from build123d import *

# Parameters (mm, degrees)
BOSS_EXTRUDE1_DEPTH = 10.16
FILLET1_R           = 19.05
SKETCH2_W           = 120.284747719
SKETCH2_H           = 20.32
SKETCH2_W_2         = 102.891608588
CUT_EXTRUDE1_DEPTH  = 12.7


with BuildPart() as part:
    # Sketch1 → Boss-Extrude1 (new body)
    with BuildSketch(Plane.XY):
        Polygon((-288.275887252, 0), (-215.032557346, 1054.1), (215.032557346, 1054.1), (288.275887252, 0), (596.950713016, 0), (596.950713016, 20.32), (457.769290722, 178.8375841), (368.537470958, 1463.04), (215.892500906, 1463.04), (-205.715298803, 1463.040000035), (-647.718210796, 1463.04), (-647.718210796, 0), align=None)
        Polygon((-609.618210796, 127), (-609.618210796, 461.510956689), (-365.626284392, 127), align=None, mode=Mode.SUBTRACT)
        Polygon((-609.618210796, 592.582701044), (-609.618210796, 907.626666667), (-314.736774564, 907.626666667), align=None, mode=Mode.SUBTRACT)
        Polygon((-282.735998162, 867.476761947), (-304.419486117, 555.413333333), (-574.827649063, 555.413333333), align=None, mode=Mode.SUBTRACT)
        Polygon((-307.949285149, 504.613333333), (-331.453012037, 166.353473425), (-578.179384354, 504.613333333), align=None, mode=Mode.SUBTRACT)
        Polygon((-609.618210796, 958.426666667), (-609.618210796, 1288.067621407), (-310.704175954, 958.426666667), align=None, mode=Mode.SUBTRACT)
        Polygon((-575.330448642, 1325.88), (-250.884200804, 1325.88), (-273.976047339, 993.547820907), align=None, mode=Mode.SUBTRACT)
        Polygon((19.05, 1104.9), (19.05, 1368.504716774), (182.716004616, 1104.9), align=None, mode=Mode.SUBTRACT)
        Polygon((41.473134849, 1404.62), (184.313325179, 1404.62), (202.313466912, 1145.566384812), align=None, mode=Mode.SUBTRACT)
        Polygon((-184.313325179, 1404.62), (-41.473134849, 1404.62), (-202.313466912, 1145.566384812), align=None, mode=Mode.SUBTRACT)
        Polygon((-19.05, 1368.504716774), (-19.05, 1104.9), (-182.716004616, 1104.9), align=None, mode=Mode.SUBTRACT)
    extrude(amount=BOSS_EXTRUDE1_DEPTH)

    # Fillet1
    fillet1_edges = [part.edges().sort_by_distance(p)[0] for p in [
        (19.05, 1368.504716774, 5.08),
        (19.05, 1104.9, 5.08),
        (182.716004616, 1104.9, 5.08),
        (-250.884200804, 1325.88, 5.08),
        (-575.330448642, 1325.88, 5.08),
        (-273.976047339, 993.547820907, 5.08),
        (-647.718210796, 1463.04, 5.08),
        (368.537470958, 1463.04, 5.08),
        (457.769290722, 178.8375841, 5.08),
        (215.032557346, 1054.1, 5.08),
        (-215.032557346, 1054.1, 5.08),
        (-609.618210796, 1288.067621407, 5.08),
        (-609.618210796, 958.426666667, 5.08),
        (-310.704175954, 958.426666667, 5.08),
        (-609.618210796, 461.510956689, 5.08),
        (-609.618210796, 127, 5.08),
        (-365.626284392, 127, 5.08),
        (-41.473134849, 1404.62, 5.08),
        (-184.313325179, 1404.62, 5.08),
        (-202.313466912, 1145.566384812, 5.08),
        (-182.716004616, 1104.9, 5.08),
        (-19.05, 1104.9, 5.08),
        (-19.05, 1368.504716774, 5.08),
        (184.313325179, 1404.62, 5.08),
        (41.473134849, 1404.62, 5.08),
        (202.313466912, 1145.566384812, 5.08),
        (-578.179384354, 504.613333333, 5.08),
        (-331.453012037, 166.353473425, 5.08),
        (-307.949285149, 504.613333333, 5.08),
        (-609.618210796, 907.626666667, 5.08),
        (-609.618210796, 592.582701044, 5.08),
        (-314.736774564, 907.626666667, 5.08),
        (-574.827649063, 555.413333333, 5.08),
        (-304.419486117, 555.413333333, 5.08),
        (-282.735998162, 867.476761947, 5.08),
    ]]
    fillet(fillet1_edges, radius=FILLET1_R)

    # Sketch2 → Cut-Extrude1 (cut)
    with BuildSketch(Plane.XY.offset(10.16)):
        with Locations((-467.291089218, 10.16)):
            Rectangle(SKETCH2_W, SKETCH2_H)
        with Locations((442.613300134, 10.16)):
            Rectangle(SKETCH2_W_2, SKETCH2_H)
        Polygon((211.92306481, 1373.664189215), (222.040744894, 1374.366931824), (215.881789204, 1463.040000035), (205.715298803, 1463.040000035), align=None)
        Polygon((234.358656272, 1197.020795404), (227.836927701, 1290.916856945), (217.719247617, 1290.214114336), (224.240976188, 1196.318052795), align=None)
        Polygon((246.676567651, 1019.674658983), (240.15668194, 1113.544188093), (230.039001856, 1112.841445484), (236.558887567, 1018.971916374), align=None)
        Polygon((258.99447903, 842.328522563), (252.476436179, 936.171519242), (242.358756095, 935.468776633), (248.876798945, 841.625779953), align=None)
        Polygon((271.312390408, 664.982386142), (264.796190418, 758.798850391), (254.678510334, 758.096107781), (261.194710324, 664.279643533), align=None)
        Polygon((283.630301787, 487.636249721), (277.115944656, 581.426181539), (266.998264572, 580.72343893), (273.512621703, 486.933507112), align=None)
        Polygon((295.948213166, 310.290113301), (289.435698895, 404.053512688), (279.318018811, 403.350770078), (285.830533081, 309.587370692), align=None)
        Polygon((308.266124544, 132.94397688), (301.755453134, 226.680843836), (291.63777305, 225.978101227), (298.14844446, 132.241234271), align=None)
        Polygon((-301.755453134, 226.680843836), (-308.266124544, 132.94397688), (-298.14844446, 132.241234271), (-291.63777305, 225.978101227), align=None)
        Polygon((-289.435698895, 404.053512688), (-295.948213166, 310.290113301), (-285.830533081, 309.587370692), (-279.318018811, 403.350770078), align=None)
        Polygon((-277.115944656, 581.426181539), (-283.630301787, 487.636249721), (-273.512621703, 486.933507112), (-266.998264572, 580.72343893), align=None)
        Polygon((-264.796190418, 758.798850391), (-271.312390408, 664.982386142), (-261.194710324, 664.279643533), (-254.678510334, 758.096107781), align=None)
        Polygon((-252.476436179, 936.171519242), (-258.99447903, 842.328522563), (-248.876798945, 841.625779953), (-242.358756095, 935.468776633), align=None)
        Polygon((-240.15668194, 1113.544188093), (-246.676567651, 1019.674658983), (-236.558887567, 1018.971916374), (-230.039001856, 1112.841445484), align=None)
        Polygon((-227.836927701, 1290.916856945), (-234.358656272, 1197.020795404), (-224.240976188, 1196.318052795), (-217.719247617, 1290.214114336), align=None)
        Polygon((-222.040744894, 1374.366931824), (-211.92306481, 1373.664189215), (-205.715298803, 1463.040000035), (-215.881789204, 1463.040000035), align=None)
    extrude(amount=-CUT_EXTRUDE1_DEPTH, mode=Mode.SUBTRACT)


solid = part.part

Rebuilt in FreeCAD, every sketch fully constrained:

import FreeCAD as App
import Part
import Sketcher
from FreeCAD import Vector
Q = App.Units.Quantity


def edges_at(feature, points):
    """Names of the edges that pass closest to the given points."""
    edges = feature.Shape.Edges
    near = lambda p: min(range(len(edges)), key=lambda i: edges[i].distToShape(Part.Vertex(*p))[0])
    return sorted({f"Edge{near(p) + 1}" for p in points})


def add_polygon(sketch, points):
    """Adds a closed chain of lines whose ends are joined by coincident constraints."""
    first, n = sketch.GeometryCount, len(points)
    for a, b in zip(points, points[1:] + points[:1]):
        sketch.addGeometry(Part.LineSegment(App.Vector(*a, 0), App.Vector(*b, 0)), False)
    for i in range(n):
        sketch.addConstraint(Sketcher.Constraint("Coincident", first + i, 2, first + (i + 1) % n, 1))

doc = App.newDocument("Part")
body = doc.addObject("PartDesign::Body", "Body")

sketch1 = body.newObject("Sketcher::SketchObject", "Sketch")
sketch1.AttachmentSupport = (doc.getObject("XY_Plane"), [""])
sketch1.MapMode = "FlatFace"
add_polygon(sketch1, [(-288, 0), (-215, 1054), (215, 1054), (288, 0), (597, 0), (597, 20), (458, 179), (369, 1463), (216, 1463), (-206, 1463), (-648, 1463), (-648, 0)])
add_polygon(sketch1, [(-366, 127), (-610, 127), (-610, 462)])
add_polygon(sketch1, [(-578, 505), (-308, 505), (-331, 166)])
add_polygon(sketch1, [(-315, 908), (-610, 593), (-610, 908)])
add_polygon(sketch1, [(-575, 555), (-283, 867), (-304, 555)])
add_polygon(sketch1, [(-311, 958), (-610, 958), (-610, 1288)])
add_polygon(sketch1, [(-274, 994), (-575, 1326), (-251, 1326)])
add_polygon(sketch1, [(-183, 1105), (-19, 1369), (-19, 1105)])
add_polygon(sketch1, [(-202, 1146), (-184, 1405), (-41, 1405)])
add_polygon(sketch1, [(183, 1105), (19, 1105), (19, 1369)])
add_polygon(sketch1, [(202, 1146), (41, 1405), (184, 1405)])
sketch1.addConstraint([
    Sketcher.Constraint("Horizontal", 1),
    Sketcher.Constraint("Horizontal", 3),
    Sketcher.Constraint("Vertical", 4),
    Sketcher.Constraint("Horizontal", 7),
    Sketcher.Constraint("Horizontal", 8),
    Sketcher.Constraint("Horizontal", 9),
    Sketcher.Constraint("Vertical", 10),
    Sketcher.Constraint("Horizontal", 11),
    Sketcher.Constraint("Horizontal", 12),
    Sketcher.Constraint("Vertical", 13),
    Sketcher.Constraint("Horizontal", 15),
    Sketcher.Constraint("Vertical", 19),
    Sketcher.Constraint("Horizontal", 20),
    Sketcher.Constraint("Horizontal", 23),
    Sketcher.Constraint("Horizontal", 24),
    Sketcher.Constraint("Vertical", 25),
    Sketcher.Constraint("Horizontal", 28),
    Sketcher.Constraint("Vertical", 31),
    Sketcher.Constraint("Horizontal", 32),
    Sketcher.Constraint("Horizontal", 34),
    Sketcher.Constraint("Horizontal", 36),
    Sketcher.Constraint("Vertical", 37),
    Sketcher.Constraint("Horizontal", 40),
    Sketcher.Constraint("Symmetric", 2, 2, 11, 2, -1, 1),
    Sketcher.Constraint("Symmetric", 31, 2, 36, 2, -2),
    Sketcher.Constraint("Symmetric", 34, 2, 39, 2, -2),
    Sketcher.Constraint("Symmetric", 35, 2, 41, 2, -2),
    Sketcher.Constraint("PointOnObject", 2, 2, -1),
    Sketcher.Constraint("Parallel", 2, 6),
    Sketcher.Constraint("Parallel", 0, 16),
    Sketcher.Constraint("Parallel", 14, 17),
    Sketcher.Constraint("Parallel", 18, 21),
    Sketcher.Constraint("Parallel", 16, 22),
    Sketcher.Constraint("Parallel", 26, 27),
    Sketcher.Constraint("Parallel", 22, 29),
    Sketcher.Constraint("Parallel", 29, 33),
    Sketcher.Constraint("Parallel", 30, 35),
    Sketcher.Constraint("Parallel", 38, 39),
    Sketcher.Constraint("Parallel", 6, 41),
    Sketcher.Constraint("Horizontal", 30, 2, 37, 2),
    Sketcher.Constraint("Vertical", 13, 2, 18, 2),
    Sketcher.Constraint("Vertical", 19, 2, 24, 2),
    Sketcher.Constraint("Equal", 34, 40),
    Sketcher.Constraint("DistanceY", 4, 1, 4, 2, Q("0.8 in")),
    Sketcher.Constraint("DistanceY", 10, 2, 10, 1, Q("57.6 in")),
    Sketcher.Constraint("DistanceY", -1, 1, 12, 2, Q("5 in")),
    Sketcher.Constraint("DistanceY", 15, 2, 22, 2, Q("2 in")),
    Sketcher.Constraint("DistanceY", 19, 2, 24, 2, Q("2 in")),
    Sketcher.Constraint("DistanceY", 0, 2, 31, 2, Q("2 in")),
    Sketcher.Constraint("DistanceY", -1, 1, 0, 2, Q("41.5 in")),
    Sketcher.Constraint("DistanceY", -1, 1, 27, 2, Q("52.2 in")),
    Sketcher.Constraint("DistanceY", -1, 1, 33, 2, Q("55.3 in")),
    Sketcher.Constraint("DistanceX", 10, 2, 12, 2, Q("1.5 in")),
    Sketcher.Constraint("DistanceX", 31, 2, 36, 2, Q("1.5 in")),
    Sketcher.Constraint("DistanceX", 8, 2, 8, 1, Q("421.6078 mm")),
    Sketcher.Constraint("DistanceX", 15, 1, 15, 2, Q("270.230099 mm")),
    Sketcher.Constraint("DistanceX", 7, 2, 7, 1, Q("152.64497 mm")),
    Sketcher.Constraint("DistanceX", 9, 2, 9, 1, Q("442.002912 mm")),
    Sketcher.Constraint("DistanceX", 34, 1, 34, 2, Q("142.84019 mm")),
    Sketcher.Constraint("DistanceX", -1, 1, 7, 2, Q("215.892501 mm")),
    Sketcher.Constraint("DistanceY", -1, 1, 18, 2, Q("592.582701 mm")),
    Sketcher.Constraint("DistanceX", 21, 2, -1, 1, Q("282.735998 mm")),
    Sketcher.Constraint("DistanceX", 28, 2, -1, 1, Q("250.884201 mm")),
    Sketcher.Constraint("DistanceX", 10, 2, 2, 2, Q("935.994098 mm")),
    Sketcher.Constraint("DistanceX", 10, 2, 5, 2, Q("1105.487502 mm")),
    Sketcher.Constraint("DistanceX", 11, 2, 3, 2, Q("885.2266 mm")),
    Sketcher.Constraint("DistanceX", 14, 2, 15, 2, Q("57.676999 mm")),
    Sketcher.Constraint("DistanceX", 12, 2, 16, 2, Q("278.165199 mm")),
    Sketcher.Constraint("DistanceX", 15, 2, 22, 2, Q("3.529799 mm")),
    Sketcher.Constraint("DistanceX", 20, 2, 26, 2, Q("4.032599 mm")),
    Sketcher.Constraint("Distance", 21, Q("427.435511 mm")),
    Sketcher.Constraint("Distance", 22, Q("312.815852 mm")),
    Sketcher.Constraint("Distance", 27, Q("448.619162 mm")),
    Sketcher.Constraint("Distance", 30, Q("310.280531 mm")),
    Sketcher.Constraint("DistanceX", 1, 1, 1, 2, Q("430.065115 mm")),
    Sketcher.Constraint("DistanceX", 20, 1, 20, 2, Q("294.881436 mm")),
    Sketcher.Constraint("DistanceX", 28, 1, 28, 2, Q("324.446248 mm")),
    Sketcher.Constraint("DistanceX", 32, 2, 32, 1, Q("163.666005 mm")),
    Sketcher.Constraint("DistanceY", -1, 1, 21, 2, Q("867.476762 mm")),
    Sketcher.Constraint("DistanceX", 33, 2, 32, 2, Q("1.597321 mm")),
])
pad1 = body.newObject("PartDesign::Pad", "Pad")
pad1.Profile = sketch1
pad1.Length = Q("0.4 in")
doc.recompute()

fillet = body.newObject("PartDesign::Fillet", "Fillet")
fillet.Base = (pad1, edges_at(pad1, [
    (19.05, 1368.505, 5.08),
    (19.05, 1104.9, 5.08),
    (182.716, 1104.9, 5.08),
    (-250.884, 1325.88, 5.08),
    (-575.33, 1325.88, 5.08),
    (-273.976, 993.548, 5.08),
    (-647.718, 1463.04, 5.08),
    (368.537, 1463.04, 5.08),
    (457.769, 178.838, 5.08),
    (215.033, 1054.1, 5.08),
    (-215.033, 1054.1, 5.08),
    (-609.618, 1288.068, 5.08),
    (-609.618, 958.427, 5.08),
    (-310.704, 958.427, 5.08),
    (-609.618, 461.511, 5.08),
    (-609.618, 127, 5.08),
    (-365.626, 127, 5.08),
    (-41.473, 1404.62, 5.08),
    (-184.313, 1404.62, 5.08),
    (-202.313, 1145.566, 5.08),
    (-182.716, 1104.9, 5.08),
    (-19.05, 1104.9, 5.08),
    (-19.05, 1368.505, 5.08),
    (184.313, 1404.62, 5.08),
    (41.473, 1404.62, 5.08),
    (202.313, 1145.566, 5.08),
    (-578.179, 504.613, 5.08),
    (-331.453, 166.353, 5.08),
    (-307.949, 504.613, 5.08),
    (-609.618, 907.627, 5.08),
    (-609.618, 592.583, 5.08),
    (-314.737, 907.627, 5.08),
    (-574.828, 555.413, 5.08),
    (-304.419, 555.413, 5.08),
    (-282.736, 867.477, 5.08),
]))
fillet.Radius = Q("0.75 in")

sketch2 = body.newObject("Sketcher::SketchObject", "Sketch001")
sketch2.AttachmentSupport = (doc.getObject("XY_Plane"), [""])
sketch2.MapMode = "FlatFace"
sketch2.AttachmentOffset = App.Placement(Vector(0, 0, 0.4 * 25.4), App.Rotation())
add_polygon(sketch2, [(-527, 20), (-527, 0), (-407, 0), (-407, 20)])
add_polygon(sketch2, [(391, 20), (391, 0), (494, 0), (494, 20)])
add_polygon(sketch2, [(212, 1374), (222, 1374), (216, 1463), (206, 1463)])
add_polygon(sketch2, [(234, 1197), (228, 1291), (218, 1290), (224, 1196)])
add_polygon(sketch2, [(247, 1020), (240, 1114), (230, 1113), (237, 1019)])
add_polygon(sketch2, [(259, 842), (252, 936), (242, 935), (249, 842)])
add_polygon(sketch2, [(271, 665), (265, 759), (255, 758), (261, 664)])
add_polygon(sketch2, [(284, 488), (277, 581), (267, 581), (274, 487)])
add_polygon(sketch2, [(296, 310), (289, 404), (279, 403), (286, 310)])
add_polygon(sketch2, [(308, 133), (302, 227), (292, 226), (298, 132)])
add_polygon(sketch2, [(-302, 227), (-308, 133), (-298, 132), (-292, 226)])
add_polygon(sketch2, [(-289, 404), (-296, 310), (-286, 310), (-279, 403)])
add_polygon(sketch2, [(-277, 581), (-284, 488), (-274, 487), (-267, 581)])
add_polygon(sketch2, [(-265, 759), (-271, 665), (-261, 664), (-255, 758)])
add_polygon(sketch2, [(-252, 936), (-259, 842), (-249, 842), (-242, 935)])
add_polygon(sketch2, [(-240, 1114), (-247, 1020), (-237, 1019), (-230, 1113)])
add_polygon(sketch2, [(-228, 1291), (-234, 1197), (-224, 1196), (-218, 1290)])
add_polygon(sketch2, [(-222, 1374), (-212, 1374), (-206, 1463), (-216, 1463)])
sketch2.addConstraint([
    Sketcher.Constraint("Vertical", 0),
    Sketcher.Constraint("Horizontal", 1),
    Sketcher.Constraint("Vertical", 2),
    Sketcher.Constraint("Horizontal", 3),
    Sketcher.Constraint("Vertical", 4),
    Sketcher.Constraint("Horizontal", 5),
    Sketcher.Constraint("Vertical", 6),
    Sketcher.Constraint("Horizontal", 7),
    Sketcher.Constraint("Horizontal", 10),
    Sketcher.Constraint("Horizontal", 70),
    Sketcher.Constraint("Symmetric", 39, 2, 40, 2, -2),
    Sketcher.Constraint("Symmetric", 38, 2, 41, 2, -2),
    Sketcher.Constraint("Symmetric", 37, 2, 42, 2, -2),
    Sketcher.Constraint("Symmetric", 36, 2, 43, 2, -2),
    Sketcher.Constraint("Symmetric", 35, 2, 44, 2, -2),
    Sketcher.Constraint("Symmetric", 34, 2, 45, 2, -2),
    Sketcher.Constraint("Symmetric", 33, 2, 46, 2, -2),
    Sketcher.Constraint("Symmetric", 32, 2, 47, 2, -2),
    Sketcher.Constraint("Symmetric", 31, 2, 48, 2, -2),
    Sketcher.Constraint("Symmetric", 30, 2, 49, 2, -2),
    Sketcher.Constraint("Symmetric", 29, 2, 50, 2, -2),
    Sketcher.Constraint("Symmetric", 28, 2, 51, 2, -2),
    Sketcher.Constraint("Symmetric", 27, 2, 52, 2, -2),
    Sketcher.Constraint("Symmetric", 26, 2, 53, 2, -2),
    Sketcher.Constraint("Symmetric", 25, 2, 54, 2, -2),
    Sketcher.Constraint("Symmetric", 24, 2, 55, 2, -2),
    Sketcher.Constraint("Symmetric", 23, 2, 56, 2, -2),
    Sketcher.Constraint("Symmetric", 22, 2, 57, 2, -2),
    Sketcher.Constraint("Symmetric", 21, 2, 58, 2, -2),
    Sketcher.Constraint("Symmetric", 20, 2, 59, 2, -2),
    Sketcher.Constraint("Symmetric", 19, 2, 60, 2, -2),
    Sketcher.Constraint("Symmetric", 18, 2, 61, 2, -2),
    Sketcher.Constraint("Symmetric", 17, 2, 62, 2, -2),
    Sketcher.Constraint("Symmetric", 16, 2, 63, 2, -2),
    Sketcher.Constraint("Symmetric", 15, 2, 64, 2, -2),
    Sketcher.Constraint("Symmetric", 14, 2, 65, 2, -2),
    Sketcher.Constraint("Symmetric", 13, 2, 66, 2, -2),
    Sketcher.Constraint("Symmetric", 12, 2, 67, 2, -2),
    Sketcher.Constraint("Symmetric", 11, 2, 68, 2, -2),
    Sketcher.Constraint("Symmetric", 10, 2, 69, 2, -2),
    Sketcher.Constraint("Symmetric", 8, 2, 71, 2, -2),
    Sketcher.Constraint("PointOnObject", 0, 2, -1),
    Sketcher.Constraint("PointOnObject", 4, 2, -1),
    Sketcher.Constraint("Perpendicular", 8, 9),
    Sketcher.Constraint("Parallel", 9, 11),
    Sketcher.Constraint("Parallel", 11, 12),
    Sketcher.Constraint("Perpendicular", 12, 13),
    Sketcher.Constraint("Perpendicular", 13, 14),
    Sketcher.Constraint("Perpendicular", 14, 15),
    Sketcher.Constraint("Perpendicular", 15, 16),
    Sketcher.Constraint("Perpendicular", 16, 17),
    Sketcher.Constraint("Perpendicular", 17, 18),
    Sketcher.Constraint("Perpendicular", 18, 19),
    Sketcher.Constraint("Perpendicular", 19, 20),
    Sketcher.Constraint("Perpendicular", 20, 21),
    Sketcher.Constraint("Perpendicular", 21, 22),
    Sketcher.Constraint("Perpendicular", 22, 23),
    Sketcher.Constraint("Perpendicular", 23, 24),
    Sketcher.Constraint("Perpendicular", 24, 25),
    Sketcher.Constraint("Perpendicular", 25, 26),
    Sketcher.Constraint("Perpendicular", 26, 27),
    Sketcher.Constraint("Perpendicular", 27, 28),
    Sketcher.Constraint("Perpendicular", 28, 29),
    Sketcher.Constraint("Perpendicular", 29, 30),
    Sketcher.Constraint("Perpendicular", 30, 31),
    Sketcher.Constraint("Perpendicular", 31, 32),
    Sketcher.Constraint("Perpendicular", 32, 33),
    Sketcher.Constraint("Perpendicular", 33, 34),
    Sketcher.Constraint("Perpendicular", 34, 35),
    Sketcher.Constraint("Perpendicular", 35, 36),
    Sketcher.Constraint("Perpendicular", 36, 37),
    Sketcher.Constraint("Perpendicular", 37, 38),
    Sketcher.Constraint("Perpendicular", 38, 39),
    Sketcher.Constraint("Parallel", 69, 71),
    Sketcher.Constraint("Horizontal", 3, 2, 6, 2),
    Sketcher.Constraint("Equal", 8, 13),
    Sketcher.Constraint("Equal", 15, 17),
    Sketcher.Constraint("Equal", 19, 21),
    Sketcher.Constraint("Equal", 23, 25),
    Sketcher.Constraint("Equal", 27, 29),
    Sketcher.Constraint("Equal", 31, 33),
    Sketcher.Constraint("Equal", 35, 37),
    Sketcher.Constraint("DistanceY", 0, 2, 0, 1, Q("0.8 in")),
    Sketcher.Constraint("DistanceY", -1, 1, 9, 2, Q("57.6 in")),
    Sketcher.Constraint("Distance", 9, Q("88.886702 mm")),
    Sketcher.Constraint("Distance", 36, Q("93.9627 mm")),
    Sketcher.Constraint("DistanceX", 5, 1, 5, 2, Q("102.891609 mm")),
    Sketcher.Constraint("DistanceX", 10, 2, 10, 1, Q("10.16649 mm")),
    Sketcher.Constraint("DistanceX", -1, 1, 10, 2, Q("205.715299 mm")),
    Sketcher.Constraint("DistanceX", -1, 1, 17, 2, Q("230.039002 mm")),
    Sketcher.Constraint("DistanceX", -1, 1, 22, 2, Q("248.876799 mm")),
    Sketcher.Constraint("DistanceX", -1, 1, 31, 2, Q("283.630302 mm")),
    Sketcher.Constraint("DistanceX", -1, 1, 32, 2, Q("289.435699 mm")),
    Sketcher.Constraint("DistanceY", -1, 1, 37, 2, Q("225.978101 mm")),
    Sketcher.Constraint("Distance", 12, Q("94.122279 mm")),
    Sketcher.Constraint("Distance", 24, Q("94.042489 mm")),
    Sketcher.Constraint("DistanceX", 1, 1, 1, 2, Q("120.284748 mm")),
    Sketcher.Constraint("DistanceY", -1, 1, 8, 2, Q("1374.366932 mm")),
    Sketcher.Constraint("DistanceY", -1, 1, 16, 2, Q("1113.544188 mm")),
    Sketcher.Constraint("DistanceY", -1, 1, 19, 2, Q("1019.674659 mm")),
    Sketcher.Constraint("DistanceY", -1, 1, 20, 2, Q("936.171519 mm")),
    Sketcher.Constraint("DistanceY", -1, 1, 22, 2, Q("841.62578 mm")),
    Sketcher.Constraint("DistanceX", -1, 1, 24, 2, Q("264.79619 mm")),
    Sketcher.Constraint("DistanceY", -1, 1, 24, 2, Q("758.79885 mm")),
    Sketcher.Constraint("DistanceY", -1, 1, 28, 2, Q("581.426182 mm")),
    Sketcher.Constraint("DistanceY", -1, 1, 31, 2, Q("487.63625 mm")),
    Sketcher.Constraint("DistanceY", -1, 1, 33, 2, Q("403.35077 mm")),
    Sketcher.Constraint("DistanceY", -1, 1, 34, 2, Q("309.587371 mm")),
    Sketcher.Constraint("DistanceX", 0, 2, -1, 1, Q("527.433463 mm")),
    Sketcher.Constraint("DistanceX", -1, 1, 4, 2, Q("391.167496 mm")),
    Sketcher.Constraint("DistanceX", -1, 1, 12, 2, Q("227.836928 mm")),
    Sketcher.Constraint("DistanceY", -1, 1, 12, 2, Q("1290.916857 mm")),
    Sketcher.Constraint("DistanceX", -1, 1, 36, 2, Q("301.755453 mm")),
])
pocket1 = body.newObject("PartDesign::Pocket", "Pocket")
pocket1.Profile = sketch2
pocket1.Length = Q("0.5 in")

doc.recompute()
